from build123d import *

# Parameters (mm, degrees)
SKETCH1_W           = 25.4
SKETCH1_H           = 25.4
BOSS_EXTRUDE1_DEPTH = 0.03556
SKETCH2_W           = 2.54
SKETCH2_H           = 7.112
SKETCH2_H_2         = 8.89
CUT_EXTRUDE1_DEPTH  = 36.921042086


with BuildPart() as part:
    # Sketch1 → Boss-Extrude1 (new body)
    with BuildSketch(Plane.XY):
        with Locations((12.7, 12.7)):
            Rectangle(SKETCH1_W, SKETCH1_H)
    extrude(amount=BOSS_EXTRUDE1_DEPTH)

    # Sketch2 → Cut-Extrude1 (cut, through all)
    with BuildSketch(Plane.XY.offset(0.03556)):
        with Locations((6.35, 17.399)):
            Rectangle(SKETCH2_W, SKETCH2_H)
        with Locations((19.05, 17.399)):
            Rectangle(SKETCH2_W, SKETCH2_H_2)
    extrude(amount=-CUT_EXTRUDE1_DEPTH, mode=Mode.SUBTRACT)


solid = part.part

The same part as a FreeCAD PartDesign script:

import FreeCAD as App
import Part
import Sketcher

V = App.Vector
Q = App.Units.Quantity

doc = App.newDocument("Part")
body = doc.addObject("PartDesign::Body", "Body")

sketch1 = body.newObject("Sketcher::SketchObject", "Sketch")
sketch1.AttachmentSupport = (doc.getObject("XY_Plane"), [""])
sketch1.MapMode = "FlatFace"
sketch1.addGeometry([
    Part.LineSegment(V(0, 25.4, 0), V(0, 0, 0)),
    Part.LineSegment(V(0, 0, 0), V(25.4, 0, 0)),
    Part.LineSegment(V(25.4, 0, 0), V(25.4, 25.4, 0)),
    Part.LineSegment(V(25.4, 25.4, 0), V(0, 25.4, 0)),
], False)
sketch1.addConstraint([
    Sketcher.Constraint("Coincident", 0, 2, 1, 1),
    Sketcher.Constraint("Coincident", 1, 2, 2, 1),
    Sketcher.Constraint("Coincident", 2, 2, 3, 1),
    Sketcher.Constraint("Coincident", 3, 2, 0, 1),
    Sketcher.Constraint("Vertical", 0),
    Sketcher.Constraint("Horizontal", 1),
    Sketcher.Constraint("Vertical", 2),
    Sketcher.Constraint("Horizontal", 3),
    Sketcher.Constraint("Coincident", 0, 2, -1, 1),
    Sketcher.Constraint("Equal", 3, 0),
    Sketcher.Constraint("DistanceX", 1, 1, 1, 2, Q("1 in")),
])
pad1 = body.newObject("PartDesign::Pad", "Pad")
pad1.Profile = sketch1
pad1.Length = Q("0.0014 in")

sketch2 = body.newObject("Sketcher::SketchObject", "Sketch001")
sketch2.AttachmentSupport = (doc.getObject("XY_Plane"), [""])
sketch2.MapMode = "FlatFace"
sketch2.AttachmentOffset = App.Placement(V(0, 0, 0.0014 * 25.4), App.Rotation())
sketch2.addGeometry([
    Part.LineSegment(V(5.08, 20.955, 0), V(5.08, 13.843, 0)),
    Part.LineSegment(V(5.08, 13.843, 0), V(7.62, 13.843, 0)),
    Part.LineSegment(V(7.62, 13.843, 0), V(7.62, 20.955, 0)),
    Part.LineSegment(V(7.62, 20.955, 0), V(5.08, 20.955, 0)),
    Part.LineSegment(V(17.78, 21.844, 0), V(17.78, 12.954, 0)),
    Part.LineSegment(V(17.78, 12.954, 0), V(20.32, 12.954, 0)),
    Part.LineSegment(V(20.32, 12.954, 0), V(20.32, 21.844, 0)),
    Part.LineSegment(V(20.32, 21.844, 0), V(17.78, 21.844, 0)),
], False)
sketch2.addConstraint([
    Sketcher.Constraint("Coincident", 0, 2, 1, 1),
    Sketcher.Constraint("Coincident", 1, 2, 2, 1),
    Sketcher.Constraint("Coincident", 2, 2, 3, 1),
    Sketcher.Constraint("Coincident", 3, 2, 0, 1),
    Sketcher.Constraint("Coincident", 4, 2, 5, 1),
    Sketcher.Constraint("Coincident", 5, 2, 6, 1),
    Sketcher.Constraint("Coincident", 6, 2, 7, 1),
    Sketcher.Constraint("Coincident", 7, 2, 4, 1),
    Sketcher.Constraint("Vertical", 0),
    Sketcher.Constraint("Horizontal", 1),
    Sketcher.Constraint("Vertical", 2),
    Sketcher.Constraint("Horizontal", 3),
    Sketcher.Constraint("Vertical", 4),
    Sketcher.Constraint("Horizontal", 5),
    Sketcher.Constraint("Vertical", 6),
    Sketcher.Constraint("Horizontal", 7),
    Sketcher.Constraint("Equal", 3, 5),
    Sketcher.Constraint("DistanceX", 1, 1, 1, 2, Q("0.1 in")),
    Sketcher.Constraint("DistanceY", 0, 2, 0, 1, Q("0.28 in")),
    Sketcher.Constraint("DistanceY", 4, 2, 4, 1, Q("0.35 in")),
    Sketcher.Constraint("DistanceX", -1, 1, 0, 2, Q("0.2 in")),
    Sketcher.Constraint("DistanceX", -1, 1, 4, 2, Q("0.7 in")),
    Sketcher.Constraint("DistanceY", -1, 1, 4, 2, Q("0.51 in")),
    Sketcher.Constraint("DistanceY", -1, 1, 0, 2, Q("0.545 in")),
])
pocket1 = body.newObject("PartDesign::Pocket", "Pocket")
pocket1.Profile = sketch2
pocket1.Type = "ThroughAll"

doc.recompute()
